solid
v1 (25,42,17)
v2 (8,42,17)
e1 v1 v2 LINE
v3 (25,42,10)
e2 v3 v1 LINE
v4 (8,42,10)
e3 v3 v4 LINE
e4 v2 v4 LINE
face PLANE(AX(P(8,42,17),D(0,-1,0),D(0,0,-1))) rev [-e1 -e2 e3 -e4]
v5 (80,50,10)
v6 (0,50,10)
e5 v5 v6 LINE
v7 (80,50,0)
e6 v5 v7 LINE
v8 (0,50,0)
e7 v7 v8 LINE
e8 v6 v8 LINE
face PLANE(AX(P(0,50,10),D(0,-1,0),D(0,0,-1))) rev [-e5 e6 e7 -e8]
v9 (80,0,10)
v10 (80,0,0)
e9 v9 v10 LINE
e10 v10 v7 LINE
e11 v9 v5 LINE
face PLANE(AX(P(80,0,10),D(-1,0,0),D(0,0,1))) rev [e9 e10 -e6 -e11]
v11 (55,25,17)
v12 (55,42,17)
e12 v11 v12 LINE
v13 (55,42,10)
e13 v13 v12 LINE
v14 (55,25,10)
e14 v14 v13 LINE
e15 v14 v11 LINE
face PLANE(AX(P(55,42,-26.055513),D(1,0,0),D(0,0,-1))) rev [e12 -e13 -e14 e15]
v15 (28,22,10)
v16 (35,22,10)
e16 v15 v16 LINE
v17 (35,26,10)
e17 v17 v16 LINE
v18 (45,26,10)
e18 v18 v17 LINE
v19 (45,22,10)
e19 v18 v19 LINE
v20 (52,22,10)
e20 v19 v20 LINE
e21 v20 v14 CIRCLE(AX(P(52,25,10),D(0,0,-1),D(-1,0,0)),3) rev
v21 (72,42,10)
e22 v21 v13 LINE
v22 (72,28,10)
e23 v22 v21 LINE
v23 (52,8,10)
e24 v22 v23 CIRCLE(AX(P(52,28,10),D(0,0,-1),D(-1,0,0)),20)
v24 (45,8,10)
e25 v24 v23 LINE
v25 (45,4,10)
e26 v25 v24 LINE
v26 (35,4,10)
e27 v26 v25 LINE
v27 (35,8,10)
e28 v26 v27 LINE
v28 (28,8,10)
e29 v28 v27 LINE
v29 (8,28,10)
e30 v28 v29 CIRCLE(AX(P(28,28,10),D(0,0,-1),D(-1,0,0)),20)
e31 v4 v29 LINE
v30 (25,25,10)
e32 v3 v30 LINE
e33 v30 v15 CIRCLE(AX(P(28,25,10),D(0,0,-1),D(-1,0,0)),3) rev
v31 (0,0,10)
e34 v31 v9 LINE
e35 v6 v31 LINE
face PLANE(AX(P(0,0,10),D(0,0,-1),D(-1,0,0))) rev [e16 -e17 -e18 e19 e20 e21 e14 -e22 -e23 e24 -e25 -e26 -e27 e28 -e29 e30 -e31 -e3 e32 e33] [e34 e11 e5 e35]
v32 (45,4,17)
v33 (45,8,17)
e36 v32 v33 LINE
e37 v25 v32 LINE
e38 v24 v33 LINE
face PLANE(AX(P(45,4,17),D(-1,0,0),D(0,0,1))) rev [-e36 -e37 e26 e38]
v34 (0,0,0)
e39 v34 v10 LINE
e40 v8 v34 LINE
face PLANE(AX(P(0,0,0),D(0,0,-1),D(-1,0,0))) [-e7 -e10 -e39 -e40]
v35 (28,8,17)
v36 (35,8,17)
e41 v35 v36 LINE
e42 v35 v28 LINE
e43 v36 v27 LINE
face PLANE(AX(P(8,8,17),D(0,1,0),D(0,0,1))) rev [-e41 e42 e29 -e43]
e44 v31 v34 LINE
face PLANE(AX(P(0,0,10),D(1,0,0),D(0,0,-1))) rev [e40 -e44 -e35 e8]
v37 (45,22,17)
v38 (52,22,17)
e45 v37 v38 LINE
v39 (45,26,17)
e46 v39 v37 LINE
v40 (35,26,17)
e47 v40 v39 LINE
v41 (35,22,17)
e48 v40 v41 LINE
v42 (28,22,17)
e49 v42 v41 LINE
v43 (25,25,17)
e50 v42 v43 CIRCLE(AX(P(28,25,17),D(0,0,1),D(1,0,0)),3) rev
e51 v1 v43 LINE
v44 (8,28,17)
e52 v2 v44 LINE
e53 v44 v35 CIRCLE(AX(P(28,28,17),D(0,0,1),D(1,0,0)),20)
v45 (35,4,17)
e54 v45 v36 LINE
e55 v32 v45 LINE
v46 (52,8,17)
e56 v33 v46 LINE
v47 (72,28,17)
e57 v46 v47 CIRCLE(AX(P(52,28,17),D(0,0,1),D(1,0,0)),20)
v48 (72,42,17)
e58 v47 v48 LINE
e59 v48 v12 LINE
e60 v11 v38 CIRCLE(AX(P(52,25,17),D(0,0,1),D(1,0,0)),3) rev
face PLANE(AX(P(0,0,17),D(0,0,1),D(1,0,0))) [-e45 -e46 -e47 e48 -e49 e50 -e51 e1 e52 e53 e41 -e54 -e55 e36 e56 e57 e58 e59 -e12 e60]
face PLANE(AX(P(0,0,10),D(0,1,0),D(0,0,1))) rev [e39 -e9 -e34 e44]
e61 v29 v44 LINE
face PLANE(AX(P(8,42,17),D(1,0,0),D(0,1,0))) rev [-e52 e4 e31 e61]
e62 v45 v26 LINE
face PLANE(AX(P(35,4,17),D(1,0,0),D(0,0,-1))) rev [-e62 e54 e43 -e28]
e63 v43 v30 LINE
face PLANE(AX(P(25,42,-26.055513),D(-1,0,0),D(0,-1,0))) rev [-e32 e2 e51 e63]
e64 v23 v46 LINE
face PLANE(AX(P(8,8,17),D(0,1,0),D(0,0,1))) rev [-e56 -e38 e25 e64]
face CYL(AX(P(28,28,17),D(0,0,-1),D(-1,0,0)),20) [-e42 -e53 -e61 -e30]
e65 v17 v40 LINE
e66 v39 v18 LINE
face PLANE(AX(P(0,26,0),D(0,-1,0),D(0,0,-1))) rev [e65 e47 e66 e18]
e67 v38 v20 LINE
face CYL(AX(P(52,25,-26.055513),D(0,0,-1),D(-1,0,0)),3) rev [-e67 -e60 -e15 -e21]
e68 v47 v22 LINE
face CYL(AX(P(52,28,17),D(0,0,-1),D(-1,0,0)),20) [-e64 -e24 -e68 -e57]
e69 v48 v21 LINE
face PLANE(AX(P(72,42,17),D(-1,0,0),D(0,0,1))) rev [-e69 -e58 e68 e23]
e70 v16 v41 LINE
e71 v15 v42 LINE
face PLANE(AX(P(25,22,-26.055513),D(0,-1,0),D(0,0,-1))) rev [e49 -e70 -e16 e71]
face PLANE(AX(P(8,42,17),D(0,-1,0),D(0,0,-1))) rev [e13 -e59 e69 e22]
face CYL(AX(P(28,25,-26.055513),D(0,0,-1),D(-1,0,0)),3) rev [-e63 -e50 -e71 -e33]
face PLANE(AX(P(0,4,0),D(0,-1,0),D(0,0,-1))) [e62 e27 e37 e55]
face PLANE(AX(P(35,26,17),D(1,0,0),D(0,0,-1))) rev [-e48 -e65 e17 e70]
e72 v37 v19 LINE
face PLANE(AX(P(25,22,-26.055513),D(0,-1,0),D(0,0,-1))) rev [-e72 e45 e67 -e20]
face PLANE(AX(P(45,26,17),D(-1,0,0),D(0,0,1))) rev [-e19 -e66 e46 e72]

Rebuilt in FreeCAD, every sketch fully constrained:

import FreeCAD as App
import Part
import Sketcher


def edges_at(feature, points):
    """Names of the edges that pass closest to the given points."""
    edges = feature.Shape.Edges
    near = lambda p: min(range(len(edges)), key=lambda i: edges[i].distToShape(Part.Vertex(*p))[0])
    return sorted({f"Edge{near(p) + 1}" for p in points})


def add_polygon(sketch, points):
    """Adds a closed chain of lines whose ends are joined by coincident constraints."""
    first, n = sketch.GeometryCount, len(points)
    for a, b in zip(points, points[1:] + points[:1]):
        sketch.addGeometry(Part.LineSegment(App.Vector(*a, 0), App.Vector(*b, 0)), False)
    for i in range(n):
        sketch.addConstraint(Sketcher.Constraint("Coincident", first + i, 2, first + (i + 1) % n, 1))

doc = App.newDocument("Part")
body = doc.addObject("PartDesign::Body", "Body")

sketch1 = body.newObject("Sketcher::SketchObject", "Sketch")
sketch1.AttachmentSupport = (doc.getObject("XY_Plane"), [""])
sketch1.MapMode = "FlatFace"
add_polygon(sketch1, [(0, 50), (0, 0), (80, 0), (80, 50)])
sketch1.addConstraint([
    Sketcher.Constraint("Vertical", 0),
    Sketcher.Constraint("Horizontal", 1),
    Sketcher.Constraint("Vertical", 2),
    Sketcher.Constraint("Horizontal", 3),
    Sketcher.Constraint("Coincident", 0, 2, -1, 1),
    Sketcher.Constraint("DistanceX", 1, 1, 1, 2, 80.0),
    Sketcher.Constraint("DistanceY", 0, 2, 0, 1, 50.0),
])
pad1 = body.newObject("PartDesign::Pad", "Pad")
pad1.Profile = sketch1
pad1.Length = 10

sketch2 = body.newObject("Sketcher::SketchObject", "Sketch001")
sketch2.AttachmentSupport = (doc.getObject("XY_Plane"), [""])
sketch2.MapMode = "FlatFace"
sketch2.AttachmentOffset = App.Placement(App.Vector(0, 0, 10), App.Rotation())
add_polygon(sketch2, [(8, 42), (8, 8), (72, 8), (72, 42)])
sketch2.addConstraint([
    Sketcher.Constraint("Vertical", 0),
    Sketcher.Constraint("Horizontal", 1),
    Sketcher.Constraint("Vertical", 2),
    Sketcher.Constraint("Horizontal", 3),
    Sketcher.Constraint("DistanceX", 1, 1, 1, 2, 64.0),
    Sketcher.Constraint("DistanceY", 0, 2, 0, 1, 34.0),
    Sketcher.Constraint("DistanceX", -1, 1, 0, 2, 8.0),
    Sketcher.Constraint("DistanceY", -1, 1, 0, 2, 8.0),
])
pad2 = body.newObject("PartDesign::Pad", "Pad001")
pad2.Profile = sketch2
pad2.Length = 7
doc.recompute()

fillet = body.newObject("PartDesign::Fillet", "Fillet")
fillet.Base = (pad2, edges_at(pad2, [(8, 8, 13.5), (72, 8, 13.5)]))
fillet.Radius = 20

sketch3 = body.newObject("Sketcher::SketchObject", "Sketch002")
sketch3.AttachmentSupport = (doc.getObject("XZ_Plane"), [""])
sketch3.MapMode = "FlatFace"
sketch3.AttachmentOffset = App.Placement(App.Vector(0, 0, -8), App.Rotation())
add_polygon(sketch3, [(45, 10), (45, 17), (35, 17), (35, 10)])
sketch3.addConstraint([
    Sketcher.Constraint("Vertical", 0),
    Sketcher.Constraint("Horizontal", 1),
    Sketcher.Constraint("Vertical", 2),
    Sketcher.Constraint("Horizontal", 3),
    Sketcher.Constraint("DistanceX", 1, 2, 1, 1, 10.0),
    Sketcher.Constraint("DistanceY", 0, 1, 0, 2, 7.0),
    Sketcher.Constraint("DistanceX", -1, 1, 0, 2, 45.0),
    Sketcher.Constraint("DistanceY", -1, 1, 0, 2, 17.0),
])
pad3 = body.newObject("PartDesign::Pad", "Pad002")
pad3.Profile = sketch3
pad3.Length = 4

sketch4 = body.newObject("Sketcher::SketchObject", "Sketch003")
sketch4.AttachmentSupport = (doc.getObject("XY_Plane"), [""])
sketch4.MapMode = "FlatFace"
sketch4.AttachmentOffset = App.Placement(App.Vector(0, 0, 17), App.Rotation())
add_polygon(sketch4, [(25, 42), (25, 22), (55, 22), (55, 42)])
sketch4.addConstraint([
    Sketcher.Constraint("Vertical", 0),
    Sketcher.Constraint("Horizontal", 1),
    Sketcher.Constraint("Vertical", 2),
    Sketcher.Constraint("Horizontal", 3),
    Sketcher.Constraint("DistanceX", 1, 1, 1, 2, 30.0),
    Sketcher.Constraint("DistanceY", 0, 2, 0, 1, 20.0),
    Sketcher.Constraint("DistanceX", -1, 1, 0, 2, 25.0),
    Sketcher.Constraint("DistanceY", -1, 1, 0, 2, 22.0),
])
pocket1 = body.newObject("PartDesign::Pocket", "Pocket")
pocket1.Profile = sketch4
pocket1.Length = 7
doc.recompute()

fillet2 = body.newObject("PartDesign::Fillet", "Fillet001")
fillet2.Base = (pocket1, edges_at(pocket1, [(55, 22, 13.5), (25, 22, 13.5)]))
fillet2.Radius = 3

sketch5 = body.newObject("Sketcher::SketchObject", "Sketch004")
sketch5.AttachmentSupport = (doc.getObject("XZ_Plane"), [""])
sketch5.MapMode = "FlatFace"
sketch5.AttachmentOffset = App.Placement(App.Vector(0, 0, -22), App.Rotation())
add_polygon(sketch5, [(35, 10), (35, 17), (45, 17), (45, 10)])
sketch5.addConstraint([
    Sketcher.Constraint("Vertical", 0),
    Sketcher.Constraint("Horizontal", 1),
    Sketcher.Constraint("Vertical", 2),
    Sketcher.Constraint("Horizontal", 3),
    Sketcher.Constraint("DistanceX", 1, 1, 1, 2, 10.0),
    Sketcher.Constraint("DistanceY", 0, 1, 0, 2, 7.0),
    Sketcher.Constraint("DistanceX", -1, 1, 0, 2, 35.0),
    Sketcher.Constraint("DistanceY", -1, 1, 0, 2, 17.0),
])
pad4 = body.newObject("PartDesign::Pad", "Pad003")
pad4.Profile = sketch5
pad4.Length = 4
pad4.Reversed = True

doc.recompute()
